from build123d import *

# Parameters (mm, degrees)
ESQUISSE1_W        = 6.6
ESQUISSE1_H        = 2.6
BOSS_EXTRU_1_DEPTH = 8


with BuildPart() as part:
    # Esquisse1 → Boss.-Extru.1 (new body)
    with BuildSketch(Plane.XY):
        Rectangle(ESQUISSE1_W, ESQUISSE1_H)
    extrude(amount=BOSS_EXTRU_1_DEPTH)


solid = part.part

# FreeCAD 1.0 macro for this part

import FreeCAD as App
import Part
import Sketcher

V = App.Vector
Q = App.Units.Quantity

doc = App.newDocument("Part")
body = doc.addObject("PartDesign::Body", "Body")

sketch1 = body.newObject("Sketcher::SketchObject", "Sketch")
sketch1.AttachmentSupport = (doc.getObject("XY_Plane"), [""])
sketch1.MapMode = "FlatFace"
sketch1.addGeometry(Part.LineSegment(V(-3.3, 1.3, 0), V(-3.3, -1.3, 0)), False)
sketch1.addGeometry(Part.LineSegment(V(-3.3, -1.3, 0), V(3.3, -1.3, 0)), False)
sketch1.addGeometry(Part.LineSegment(V(3.3, -1.3, 0), V(3.3, 1.3, 0)), False)
sketch1.addGeometry(Part.LineSegment(V(3.3, 1.3, 0), V(-3.3, 1.3, 0)), False)
sketch1.addConstraint(Sketcher.Constraint("Coincident", 0, 2, 1, 1))
sketch1.addConstraint(Sketcher.Constraint("Coincident", 1, 2, 2, 1))
sketch1.addConstraint(Sketcher.Constraint("Coincident", 2, 2, 3, 1))
sketch1.addConstraint(Sketcher.Constraint("Coincident", 3, 2, 0, 1))
sketch1.addConstraint(Sketcher.Constraint("Vertical", 0))
sketch1.addConstraint(Sketcher.Constraint("Horizontal", 1))
sketch1.addConstraint(Sketcher.Constraint("Vertical", 2))
sketch1.addConstraint(Sketcher.Constraint("Horizontal", 3))
sketch1.addConstraint(Sketcher.Constraint("Symmetric", 0, 2, 2, 2, -1, 1))
sketch1.addConstraint(Sketcher.Constraint("DistanceX", 1, 1, 1, 2, Q("6.6 mm")))
sketch1.addConstraint(Sketcher.Constraint("DistanceY", 0, 2, 0, 1, Q("2.6 mm")))
pad1 = body.newObject("PartDesign::Pad", "Pad")
pad1.Profile = sketch1
pad1.Length = 8

doc.recompute()
